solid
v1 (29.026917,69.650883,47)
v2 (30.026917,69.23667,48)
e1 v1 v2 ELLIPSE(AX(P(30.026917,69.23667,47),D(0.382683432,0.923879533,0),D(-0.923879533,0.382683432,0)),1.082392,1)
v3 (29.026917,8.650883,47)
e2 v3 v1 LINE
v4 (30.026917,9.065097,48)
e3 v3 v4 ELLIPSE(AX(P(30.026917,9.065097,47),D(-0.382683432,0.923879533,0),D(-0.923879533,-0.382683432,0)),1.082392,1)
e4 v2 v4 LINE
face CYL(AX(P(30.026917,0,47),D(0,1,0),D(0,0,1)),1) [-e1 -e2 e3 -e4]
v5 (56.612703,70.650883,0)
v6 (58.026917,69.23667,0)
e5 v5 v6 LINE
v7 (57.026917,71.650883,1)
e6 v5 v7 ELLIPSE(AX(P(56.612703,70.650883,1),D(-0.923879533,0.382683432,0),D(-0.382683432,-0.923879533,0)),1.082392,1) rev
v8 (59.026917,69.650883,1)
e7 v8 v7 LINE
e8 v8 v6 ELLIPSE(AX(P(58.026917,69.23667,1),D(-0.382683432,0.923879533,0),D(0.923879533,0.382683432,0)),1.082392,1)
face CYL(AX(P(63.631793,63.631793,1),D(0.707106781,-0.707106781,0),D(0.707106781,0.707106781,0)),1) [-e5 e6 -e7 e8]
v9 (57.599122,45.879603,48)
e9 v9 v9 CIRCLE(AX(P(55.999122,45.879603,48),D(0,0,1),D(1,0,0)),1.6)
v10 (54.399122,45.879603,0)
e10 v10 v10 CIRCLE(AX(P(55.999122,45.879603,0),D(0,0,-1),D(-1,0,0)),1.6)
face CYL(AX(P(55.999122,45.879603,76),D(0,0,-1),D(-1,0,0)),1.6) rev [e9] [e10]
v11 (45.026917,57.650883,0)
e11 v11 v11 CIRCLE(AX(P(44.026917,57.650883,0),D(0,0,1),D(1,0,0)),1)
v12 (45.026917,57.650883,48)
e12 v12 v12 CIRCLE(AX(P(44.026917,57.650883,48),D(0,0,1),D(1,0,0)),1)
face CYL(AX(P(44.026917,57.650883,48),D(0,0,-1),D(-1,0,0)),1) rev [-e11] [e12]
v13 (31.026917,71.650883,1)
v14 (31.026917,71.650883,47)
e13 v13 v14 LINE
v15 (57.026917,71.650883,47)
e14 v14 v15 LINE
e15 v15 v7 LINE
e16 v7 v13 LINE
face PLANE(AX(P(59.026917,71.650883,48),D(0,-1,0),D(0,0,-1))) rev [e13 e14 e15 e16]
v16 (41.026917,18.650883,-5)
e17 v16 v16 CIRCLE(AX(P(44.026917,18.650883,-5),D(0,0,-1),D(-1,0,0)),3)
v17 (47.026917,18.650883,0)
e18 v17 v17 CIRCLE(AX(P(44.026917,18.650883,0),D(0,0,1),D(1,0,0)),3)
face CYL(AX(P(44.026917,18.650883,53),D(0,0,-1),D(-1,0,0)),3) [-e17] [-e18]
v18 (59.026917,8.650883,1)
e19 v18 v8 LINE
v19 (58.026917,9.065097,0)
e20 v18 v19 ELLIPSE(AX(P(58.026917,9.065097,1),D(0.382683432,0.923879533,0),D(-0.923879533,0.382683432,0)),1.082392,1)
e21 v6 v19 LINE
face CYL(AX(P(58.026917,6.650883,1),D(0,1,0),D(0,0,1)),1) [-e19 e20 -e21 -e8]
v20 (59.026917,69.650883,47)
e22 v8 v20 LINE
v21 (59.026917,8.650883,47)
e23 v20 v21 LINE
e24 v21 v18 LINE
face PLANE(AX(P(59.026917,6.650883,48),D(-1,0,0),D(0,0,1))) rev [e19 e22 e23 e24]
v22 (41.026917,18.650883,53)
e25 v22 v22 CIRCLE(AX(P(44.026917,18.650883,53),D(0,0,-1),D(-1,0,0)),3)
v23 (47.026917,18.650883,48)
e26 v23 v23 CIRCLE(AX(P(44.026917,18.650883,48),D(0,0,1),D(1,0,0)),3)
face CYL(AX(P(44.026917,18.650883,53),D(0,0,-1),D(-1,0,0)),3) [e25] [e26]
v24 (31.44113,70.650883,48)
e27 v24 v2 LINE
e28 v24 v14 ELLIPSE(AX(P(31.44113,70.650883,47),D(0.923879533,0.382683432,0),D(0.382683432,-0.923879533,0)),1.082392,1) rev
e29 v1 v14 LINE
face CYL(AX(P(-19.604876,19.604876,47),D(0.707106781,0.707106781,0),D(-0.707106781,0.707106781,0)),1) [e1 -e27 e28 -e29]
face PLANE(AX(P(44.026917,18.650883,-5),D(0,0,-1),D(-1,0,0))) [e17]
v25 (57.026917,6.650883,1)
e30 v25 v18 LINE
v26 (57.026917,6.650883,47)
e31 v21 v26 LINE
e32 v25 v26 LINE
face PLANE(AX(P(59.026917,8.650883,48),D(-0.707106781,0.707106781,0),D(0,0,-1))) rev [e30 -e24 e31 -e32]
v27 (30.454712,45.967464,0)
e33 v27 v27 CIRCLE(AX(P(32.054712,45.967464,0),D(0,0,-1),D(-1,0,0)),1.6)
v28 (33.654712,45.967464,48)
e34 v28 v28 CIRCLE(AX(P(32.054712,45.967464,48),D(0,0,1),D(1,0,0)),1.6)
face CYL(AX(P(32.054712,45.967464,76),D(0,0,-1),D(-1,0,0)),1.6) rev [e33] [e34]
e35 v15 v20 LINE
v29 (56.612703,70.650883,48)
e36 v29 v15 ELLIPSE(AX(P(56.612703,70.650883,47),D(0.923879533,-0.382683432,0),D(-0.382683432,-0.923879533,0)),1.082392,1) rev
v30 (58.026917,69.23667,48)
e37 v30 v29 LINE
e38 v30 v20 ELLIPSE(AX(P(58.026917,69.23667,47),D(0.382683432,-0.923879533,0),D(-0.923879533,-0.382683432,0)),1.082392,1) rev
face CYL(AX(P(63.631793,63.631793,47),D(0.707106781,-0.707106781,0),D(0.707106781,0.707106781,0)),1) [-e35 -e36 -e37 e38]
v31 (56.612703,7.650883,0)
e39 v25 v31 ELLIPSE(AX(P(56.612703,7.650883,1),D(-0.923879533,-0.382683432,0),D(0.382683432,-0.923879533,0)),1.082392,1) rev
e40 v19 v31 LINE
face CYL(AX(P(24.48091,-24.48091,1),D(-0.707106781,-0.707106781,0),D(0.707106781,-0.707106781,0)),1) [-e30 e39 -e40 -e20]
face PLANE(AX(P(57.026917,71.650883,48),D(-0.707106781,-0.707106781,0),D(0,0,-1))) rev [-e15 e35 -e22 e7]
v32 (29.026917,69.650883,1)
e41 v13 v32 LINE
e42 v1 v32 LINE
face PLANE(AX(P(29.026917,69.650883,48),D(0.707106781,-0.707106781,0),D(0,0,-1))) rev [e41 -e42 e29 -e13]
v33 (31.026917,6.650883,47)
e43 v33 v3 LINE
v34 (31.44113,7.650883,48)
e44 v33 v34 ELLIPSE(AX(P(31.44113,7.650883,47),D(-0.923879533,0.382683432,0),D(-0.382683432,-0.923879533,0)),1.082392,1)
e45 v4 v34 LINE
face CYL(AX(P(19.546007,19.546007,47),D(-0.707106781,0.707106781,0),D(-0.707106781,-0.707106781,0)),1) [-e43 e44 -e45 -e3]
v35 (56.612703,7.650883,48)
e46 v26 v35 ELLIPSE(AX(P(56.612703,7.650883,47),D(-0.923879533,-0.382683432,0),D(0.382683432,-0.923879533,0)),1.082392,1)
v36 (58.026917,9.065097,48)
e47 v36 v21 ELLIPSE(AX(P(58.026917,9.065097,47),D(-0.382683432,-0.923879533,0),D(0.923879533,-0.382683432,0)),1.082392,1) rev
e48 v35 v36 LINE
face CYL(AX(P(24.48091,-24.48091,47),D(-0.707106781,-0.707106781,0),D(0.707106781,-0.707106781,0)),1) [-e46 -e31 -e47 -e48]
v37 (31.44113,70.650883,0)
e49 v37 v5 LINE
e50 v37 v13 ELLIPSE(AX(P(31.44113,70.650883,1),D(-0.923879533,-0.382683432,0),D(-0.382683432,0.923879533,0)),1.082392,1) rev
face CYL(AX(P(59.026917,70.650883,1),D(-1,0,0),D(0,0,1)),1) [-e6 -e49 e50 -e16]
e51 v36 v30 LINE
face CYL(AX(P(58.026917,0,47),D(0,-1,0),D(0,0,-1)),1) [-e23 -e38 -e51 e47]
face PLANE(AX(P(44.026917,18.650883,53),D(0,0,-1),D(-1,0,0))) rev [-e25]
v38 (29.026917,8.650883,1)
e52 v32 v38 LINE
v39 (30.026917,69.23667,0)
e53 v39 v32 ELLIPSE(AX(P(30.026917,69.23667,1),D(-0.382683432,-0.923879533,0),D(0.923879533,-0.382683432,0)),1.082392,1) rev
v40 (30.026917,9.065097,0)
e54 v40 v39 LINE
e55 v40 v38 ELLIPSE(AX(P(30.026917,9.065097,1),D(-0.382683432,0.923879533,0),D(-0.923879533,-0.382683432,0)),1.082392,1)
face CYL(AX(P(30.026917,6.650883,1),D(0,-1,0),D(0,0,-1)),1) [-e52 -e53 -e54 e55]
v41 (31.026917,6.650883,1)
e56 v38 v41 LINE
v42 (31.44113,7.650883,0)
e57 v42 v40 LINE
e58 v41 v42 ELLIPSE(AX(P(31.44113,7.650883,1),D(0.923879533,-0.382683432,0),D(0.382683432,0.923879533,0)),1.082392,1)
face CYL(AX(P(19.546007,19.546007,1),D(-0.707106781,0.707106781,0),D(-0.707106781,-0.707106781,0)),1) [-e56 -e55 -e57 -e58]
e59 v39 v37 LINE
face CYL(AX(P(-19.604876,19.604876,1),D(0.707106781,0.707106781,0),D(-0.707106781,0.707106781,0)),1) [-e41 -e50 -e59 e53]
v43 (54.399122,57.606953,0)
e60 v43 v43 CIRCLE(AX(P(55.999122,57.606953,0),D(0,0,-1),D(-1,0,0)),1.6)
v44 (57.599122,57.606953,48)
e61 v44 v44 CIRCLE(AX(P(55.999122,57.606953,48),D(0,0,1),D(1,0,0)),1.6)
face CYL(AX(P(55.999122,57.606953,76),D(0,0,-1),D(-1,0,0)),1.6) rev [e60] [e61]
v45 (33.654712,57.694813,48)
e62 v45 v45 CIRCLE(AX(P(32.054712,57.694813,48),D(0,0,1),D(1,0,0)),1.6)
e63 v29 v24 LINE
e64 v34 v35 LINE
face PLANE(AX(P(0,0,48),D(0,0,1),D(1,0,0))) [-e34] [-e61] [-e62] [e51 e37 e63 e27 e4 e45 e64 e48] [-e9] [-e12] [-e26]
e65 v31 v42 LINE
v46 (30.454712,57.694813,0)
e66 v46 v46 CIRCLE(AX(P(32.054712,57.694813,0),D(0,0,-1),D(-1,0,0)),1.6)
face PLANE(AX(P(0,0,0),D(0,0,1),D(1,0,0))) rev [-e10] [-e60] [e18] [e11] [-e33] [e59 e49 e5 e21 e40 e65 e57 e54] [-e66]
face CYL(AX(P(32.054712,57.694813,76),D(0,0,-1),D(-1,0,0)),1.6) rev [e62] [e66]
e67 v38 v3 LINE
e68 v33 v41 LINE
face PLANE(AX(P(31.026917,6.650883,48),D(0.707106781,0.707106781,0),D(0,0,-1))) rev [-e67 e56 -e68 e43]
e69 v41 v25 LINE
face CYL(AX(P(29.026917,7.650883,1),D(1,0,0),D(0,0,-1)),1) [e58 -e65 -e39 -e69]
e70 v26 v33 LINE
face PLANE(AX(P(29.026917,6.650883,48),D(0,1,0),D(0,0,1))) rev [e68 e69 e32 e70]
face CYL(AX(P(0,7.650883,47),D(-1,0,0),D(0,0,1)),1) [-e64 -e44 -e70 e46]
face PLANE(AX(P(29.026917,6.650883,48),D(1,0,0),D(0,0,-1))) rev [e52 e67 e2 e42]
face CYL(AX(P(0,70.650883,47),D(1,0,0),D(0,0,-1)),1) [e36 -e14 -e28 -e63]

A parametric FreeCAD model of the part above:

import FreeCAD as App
import Part
import Sketcher
from FreeCAD import Vector
Q = App.Units.Quantity


def edges_at(feature, points):
    """Names of the edges that pass closest to the given points."""
    edges = feature.Shape.Edges
    near = lambda p: min(range(len(edges)), key=lambda i: edges[i].distToShape(Part.Vertex(*p))[0])
    return sorted({f"Edge{near(p) + 1}" for p in points})


def add_polygon(sketch, points):
    """Adds a closed chain of lines whose ends are joined by coincident constraints."""
    first, n = sketch.GeometryCount, len(points)
    for a, b in zip(points, points[1:] + points[:1]):
        sketch.addGeometry(Part.LineSegment(App.Vector(*a, 0), App.Vector(*b, 0)), False)
    for i in range(n):
        sketch.addConstraint(Sketcher.Constraint("Coincident", first + i, 2, first + (i + 1) % n, 1))

doc = App.newDocument("Part")
body = doc.addObject("PartDesign::Body", "Body")

# Sketch on XY plane
sketch1 = body.newObject("Sketcher::SketchObject", "Sketch")
sketch1.AttachmentSupport = (doc.getObject("XY_Plane"), [""])
sketch1.MapMode = "FlatFace"
add_polygon(sketch1, [(29.026917, 71.650883), (29.026917, 6.650883), (59.026917, 6.650883), (59.026917, 71.650883)])  # lines 0-3
sketch1.addConstraint([
    Sketcher.Constraint("Vertical", 0),
    Sketcher.Constraint("Horizontal", 1),
    Sketcher.Constraint("Vertical", 2),
    Sketcher.Constraint("Horizontal", 3),
    Sketcher.Constraint("DistanceX", 1, 1, 1, 2, Q("30 mm")),
    Sketcher.Constraint("DistanceY", 0, 2, 0, 1, Q("65 mm")),
    Sketcher.Constraint("DistanceX", -1, 1, 0, 2, Q("29.026917 mm")),
    Sketcher.Constraint("DistanceY", -1, 1, 0, 2, Q("6.650883 mm")),
])
pad1 = body.newObject("PartDesign::Pad", "Pad")
pad1.Profile = sketch1
pad1.Length = 48

# Sketch on XY plane
sketch2 = body.newObject("Sketcher::SketchObject", "Sketch001")
sketch2.AttachmentSupport = (doc.getObject("XY_Plane"), [""])
sketch2.MapMode = "FlatFace"
sketch2.addGeometry([
    Part.Circle(Vector(56.026917, 57.650883, 0), Vector(0, 0, 1), 1),  # 0
    Part.Circle(Vector(44.026917, 57.650883, 0), Vector(0, 0, 1), 1),  # 1
    Part.Circle(Vector(56.023819, 45.923534, 0), Vector(0, 0, 1), 1),  # 2
    Part.Circle(Vector(32.026917, 57.650883, 0), Vector(0, 0, 1), 1),  # 3
    Part.Circle(Vector(32.030015, 45.923534, 0), Vector(0, 0, 1), 1),  # 4
], False)
sketch2.addConstraint([
    Sketcher.Constraint("Equal", 0, 1),
    Sketcher.Constraint("Equal", 1, 2),
    Sketcher.Constraint("Equal", 2, 3),
    Sketcher.Constraint("Equal", 3, 4),
    Sketcher.Constraint("Horizontal", 0, 3, 1, 3),
    Sketcher.Constraint("Horizontal", 1, 3, 3, 3),
    Sketcher.Constraint("Horizontal", 2, 3, 4, 3),
    Sketcher.Constraint("Diameter", 0, Q("2 mm")),
    Sketcher.Constraint("DistanceX", 1, 3, 0, 3, Q("12 mm")),
    Sketcher.Constraint("DistanceX", 3, 3, 1, 3, Q("12 mm")),
    Sketcher.Constraint("DistanceX", -1, 1, 2, 3, Q("56.023819 mm")),
    Sketcher.Constraint("DistanceY", 2, 3, 0, 3, Q("11.72735 mm")),
    Sketcher.Constraint("DistanceX", -1, 1, 0, 3, Q("56.026917 mm")),
    Sketcher.Constraint("DistanceY", -1, 1, 0, 3, Q("57.650883 mm")),
    Sketcher.Constraint("DistanceX", -1, 1, 4, 3, Q("32.030015 mm")),
])
pocket1 = body.newObject("PartDesign::Pocket", "Pocket")
pocket1.Profile = sketch2
pocket1.Length = 48
pocket1.Reversed = True

# Sketch on XY plane
sketch3 = body.newObject("Sketcher::SketchObject", "Sketch002")
sketch3.AttachmentSupport = (doc.getObject("XY_Plane"), [""])
sketch3.MapMode = "FlatFace"
sketch3.addGeometry(Part.Circle(Vector(44.026917, 18.650883, 0), Vector(0, 0, 1), 3), False)
sketch3.addConstraint([
    Sketcher.Constraint("Diameter", 0, Q("6 mm")),
    Sketcher.Constraint("DistanceX", -1, 1, 0, 3, Q("44.026917 mm")),
    Sketcher.Constraint("DistanceY", -1, 1, 0, 3, Q("18.650883 mm")),
])
pad2 = body.newObject("PartDesign::Pad", "Pad001")
pad2.Profile = sketch3
pad2.Type = "TwoLengths"
pad2.Length = 5
pad2.Length2 = 53
pad2.Reversed = True
doc.recompute()

chamfer = body.newObject("PartDesign::Chamfer", "Chamfer")
chamfer.Base = (pad2, edges_at(pad2, [
    (29.027, 71.651, 24),
    (59.027, 71.651, 24),
    (59.027, 6.651, 24),
    (29.027, 6.651, 24),
]))
chamfer.Size = 2
doc.recompute()

fillet = body.newObject("PartDesign::Fillet", "Fillet")
fillet.Base = (chamfer, edges_at(chamfer, [
    (44.027, 6.651, 48),
    (29.027, 39.151, 48),
    (59.027, 39.151, 48),
    (44.027, 71.651, 48),
    (30.027, 70.651, 48),
    (58.027, 70.651, 48),
    (58.027, 7.651, 48),
    (30.027, 7.651, 48),
]))
fillet.Radius = 1
doc.recompute()

fillet2 = body.newObject("PartDesign::Fillet", "Fillet001")
fillet2.Base = (fillet, edges_at(fillet, [
    (44.027, 6.651, 0),
    (29.027, 39.151, 0),
    (44.027, 71.651, 0),
    (59.027, 39.151, 0),
    (30.027, 70.651, 0),
    (58.027, 70.651, 0),
    (58.027, 7.651, 0),
    (30.027, 7.651, 0),
]))
fillet2.Radius = 1

# Sketch on XY plane
sketch4 = body.newObject("Sketcher::SketchObject", "Sketch003")
sketch4.AttachmentSupport = (doc.getObject("XY_Plane"), [""])
sketch4.MapMode = "FlatFace"
sketch4.addGeometry([
    Part.Circle(Vector(55.999122, 57.606953, 0), Vector(0, 0, 1), 1.6),
    Part.Circle(Vector(32.054712, 57.694813, 0), Vector(0, 0, 1), 1.6),
    Part.Circle(Vector(55.999122, 45.879603, 0), Vector(0, 0, 1), 1.6),
    Part.Circle(Vector(32.054712, 45.967464, 0), Vector(0, 0, 1), 1.6),
], False)
sketch4.addConstraint([
    Sketcher.Constraint("Equal", 0, 1),
    Sketcher.Constraint("Equal", 1, 2),
    Sketcher.Constraint("Equal", 2, 3),
    Sketcher.Constraint("Vertical", 0, 3, 2, 3),
    Sketcher.Constraint("Vertical", 1, 3, 3, 3),
    Sketcher.Constraint("Diameter", 0, Q("3.2 mm")),
    Sketcher.Constraint("DistanceX", -1, 1, 0, 3, Q("55.999122 mm")),
    Sketcher.Constraint("DistanceX", 1, 3, 0, 3, Q("23.94441 mm")),
    Sketcher.Constraint("DistanceY", 0, 3, 1, 3, Q("0.087861 mm")),
    Sketcher.Constraint("DistanceY", 2, 3, 0, 3, Q("11.72735 mm")),
    Sketcher.Constraint("DistanceY", 3, 3, 1, 3, Q("11.72735 mm")),
    Sketcher.Constraint("DistanceY", -1, 1, 0, 3, Q("57.606953 mm")),
])
pocket2 = body.newObject("PartDesign::Pocket", "Pocket001")
pocket2.Profile = sketch4
pocket2.Length = 76
pocket2.Reversed = True

doc.recompute()
